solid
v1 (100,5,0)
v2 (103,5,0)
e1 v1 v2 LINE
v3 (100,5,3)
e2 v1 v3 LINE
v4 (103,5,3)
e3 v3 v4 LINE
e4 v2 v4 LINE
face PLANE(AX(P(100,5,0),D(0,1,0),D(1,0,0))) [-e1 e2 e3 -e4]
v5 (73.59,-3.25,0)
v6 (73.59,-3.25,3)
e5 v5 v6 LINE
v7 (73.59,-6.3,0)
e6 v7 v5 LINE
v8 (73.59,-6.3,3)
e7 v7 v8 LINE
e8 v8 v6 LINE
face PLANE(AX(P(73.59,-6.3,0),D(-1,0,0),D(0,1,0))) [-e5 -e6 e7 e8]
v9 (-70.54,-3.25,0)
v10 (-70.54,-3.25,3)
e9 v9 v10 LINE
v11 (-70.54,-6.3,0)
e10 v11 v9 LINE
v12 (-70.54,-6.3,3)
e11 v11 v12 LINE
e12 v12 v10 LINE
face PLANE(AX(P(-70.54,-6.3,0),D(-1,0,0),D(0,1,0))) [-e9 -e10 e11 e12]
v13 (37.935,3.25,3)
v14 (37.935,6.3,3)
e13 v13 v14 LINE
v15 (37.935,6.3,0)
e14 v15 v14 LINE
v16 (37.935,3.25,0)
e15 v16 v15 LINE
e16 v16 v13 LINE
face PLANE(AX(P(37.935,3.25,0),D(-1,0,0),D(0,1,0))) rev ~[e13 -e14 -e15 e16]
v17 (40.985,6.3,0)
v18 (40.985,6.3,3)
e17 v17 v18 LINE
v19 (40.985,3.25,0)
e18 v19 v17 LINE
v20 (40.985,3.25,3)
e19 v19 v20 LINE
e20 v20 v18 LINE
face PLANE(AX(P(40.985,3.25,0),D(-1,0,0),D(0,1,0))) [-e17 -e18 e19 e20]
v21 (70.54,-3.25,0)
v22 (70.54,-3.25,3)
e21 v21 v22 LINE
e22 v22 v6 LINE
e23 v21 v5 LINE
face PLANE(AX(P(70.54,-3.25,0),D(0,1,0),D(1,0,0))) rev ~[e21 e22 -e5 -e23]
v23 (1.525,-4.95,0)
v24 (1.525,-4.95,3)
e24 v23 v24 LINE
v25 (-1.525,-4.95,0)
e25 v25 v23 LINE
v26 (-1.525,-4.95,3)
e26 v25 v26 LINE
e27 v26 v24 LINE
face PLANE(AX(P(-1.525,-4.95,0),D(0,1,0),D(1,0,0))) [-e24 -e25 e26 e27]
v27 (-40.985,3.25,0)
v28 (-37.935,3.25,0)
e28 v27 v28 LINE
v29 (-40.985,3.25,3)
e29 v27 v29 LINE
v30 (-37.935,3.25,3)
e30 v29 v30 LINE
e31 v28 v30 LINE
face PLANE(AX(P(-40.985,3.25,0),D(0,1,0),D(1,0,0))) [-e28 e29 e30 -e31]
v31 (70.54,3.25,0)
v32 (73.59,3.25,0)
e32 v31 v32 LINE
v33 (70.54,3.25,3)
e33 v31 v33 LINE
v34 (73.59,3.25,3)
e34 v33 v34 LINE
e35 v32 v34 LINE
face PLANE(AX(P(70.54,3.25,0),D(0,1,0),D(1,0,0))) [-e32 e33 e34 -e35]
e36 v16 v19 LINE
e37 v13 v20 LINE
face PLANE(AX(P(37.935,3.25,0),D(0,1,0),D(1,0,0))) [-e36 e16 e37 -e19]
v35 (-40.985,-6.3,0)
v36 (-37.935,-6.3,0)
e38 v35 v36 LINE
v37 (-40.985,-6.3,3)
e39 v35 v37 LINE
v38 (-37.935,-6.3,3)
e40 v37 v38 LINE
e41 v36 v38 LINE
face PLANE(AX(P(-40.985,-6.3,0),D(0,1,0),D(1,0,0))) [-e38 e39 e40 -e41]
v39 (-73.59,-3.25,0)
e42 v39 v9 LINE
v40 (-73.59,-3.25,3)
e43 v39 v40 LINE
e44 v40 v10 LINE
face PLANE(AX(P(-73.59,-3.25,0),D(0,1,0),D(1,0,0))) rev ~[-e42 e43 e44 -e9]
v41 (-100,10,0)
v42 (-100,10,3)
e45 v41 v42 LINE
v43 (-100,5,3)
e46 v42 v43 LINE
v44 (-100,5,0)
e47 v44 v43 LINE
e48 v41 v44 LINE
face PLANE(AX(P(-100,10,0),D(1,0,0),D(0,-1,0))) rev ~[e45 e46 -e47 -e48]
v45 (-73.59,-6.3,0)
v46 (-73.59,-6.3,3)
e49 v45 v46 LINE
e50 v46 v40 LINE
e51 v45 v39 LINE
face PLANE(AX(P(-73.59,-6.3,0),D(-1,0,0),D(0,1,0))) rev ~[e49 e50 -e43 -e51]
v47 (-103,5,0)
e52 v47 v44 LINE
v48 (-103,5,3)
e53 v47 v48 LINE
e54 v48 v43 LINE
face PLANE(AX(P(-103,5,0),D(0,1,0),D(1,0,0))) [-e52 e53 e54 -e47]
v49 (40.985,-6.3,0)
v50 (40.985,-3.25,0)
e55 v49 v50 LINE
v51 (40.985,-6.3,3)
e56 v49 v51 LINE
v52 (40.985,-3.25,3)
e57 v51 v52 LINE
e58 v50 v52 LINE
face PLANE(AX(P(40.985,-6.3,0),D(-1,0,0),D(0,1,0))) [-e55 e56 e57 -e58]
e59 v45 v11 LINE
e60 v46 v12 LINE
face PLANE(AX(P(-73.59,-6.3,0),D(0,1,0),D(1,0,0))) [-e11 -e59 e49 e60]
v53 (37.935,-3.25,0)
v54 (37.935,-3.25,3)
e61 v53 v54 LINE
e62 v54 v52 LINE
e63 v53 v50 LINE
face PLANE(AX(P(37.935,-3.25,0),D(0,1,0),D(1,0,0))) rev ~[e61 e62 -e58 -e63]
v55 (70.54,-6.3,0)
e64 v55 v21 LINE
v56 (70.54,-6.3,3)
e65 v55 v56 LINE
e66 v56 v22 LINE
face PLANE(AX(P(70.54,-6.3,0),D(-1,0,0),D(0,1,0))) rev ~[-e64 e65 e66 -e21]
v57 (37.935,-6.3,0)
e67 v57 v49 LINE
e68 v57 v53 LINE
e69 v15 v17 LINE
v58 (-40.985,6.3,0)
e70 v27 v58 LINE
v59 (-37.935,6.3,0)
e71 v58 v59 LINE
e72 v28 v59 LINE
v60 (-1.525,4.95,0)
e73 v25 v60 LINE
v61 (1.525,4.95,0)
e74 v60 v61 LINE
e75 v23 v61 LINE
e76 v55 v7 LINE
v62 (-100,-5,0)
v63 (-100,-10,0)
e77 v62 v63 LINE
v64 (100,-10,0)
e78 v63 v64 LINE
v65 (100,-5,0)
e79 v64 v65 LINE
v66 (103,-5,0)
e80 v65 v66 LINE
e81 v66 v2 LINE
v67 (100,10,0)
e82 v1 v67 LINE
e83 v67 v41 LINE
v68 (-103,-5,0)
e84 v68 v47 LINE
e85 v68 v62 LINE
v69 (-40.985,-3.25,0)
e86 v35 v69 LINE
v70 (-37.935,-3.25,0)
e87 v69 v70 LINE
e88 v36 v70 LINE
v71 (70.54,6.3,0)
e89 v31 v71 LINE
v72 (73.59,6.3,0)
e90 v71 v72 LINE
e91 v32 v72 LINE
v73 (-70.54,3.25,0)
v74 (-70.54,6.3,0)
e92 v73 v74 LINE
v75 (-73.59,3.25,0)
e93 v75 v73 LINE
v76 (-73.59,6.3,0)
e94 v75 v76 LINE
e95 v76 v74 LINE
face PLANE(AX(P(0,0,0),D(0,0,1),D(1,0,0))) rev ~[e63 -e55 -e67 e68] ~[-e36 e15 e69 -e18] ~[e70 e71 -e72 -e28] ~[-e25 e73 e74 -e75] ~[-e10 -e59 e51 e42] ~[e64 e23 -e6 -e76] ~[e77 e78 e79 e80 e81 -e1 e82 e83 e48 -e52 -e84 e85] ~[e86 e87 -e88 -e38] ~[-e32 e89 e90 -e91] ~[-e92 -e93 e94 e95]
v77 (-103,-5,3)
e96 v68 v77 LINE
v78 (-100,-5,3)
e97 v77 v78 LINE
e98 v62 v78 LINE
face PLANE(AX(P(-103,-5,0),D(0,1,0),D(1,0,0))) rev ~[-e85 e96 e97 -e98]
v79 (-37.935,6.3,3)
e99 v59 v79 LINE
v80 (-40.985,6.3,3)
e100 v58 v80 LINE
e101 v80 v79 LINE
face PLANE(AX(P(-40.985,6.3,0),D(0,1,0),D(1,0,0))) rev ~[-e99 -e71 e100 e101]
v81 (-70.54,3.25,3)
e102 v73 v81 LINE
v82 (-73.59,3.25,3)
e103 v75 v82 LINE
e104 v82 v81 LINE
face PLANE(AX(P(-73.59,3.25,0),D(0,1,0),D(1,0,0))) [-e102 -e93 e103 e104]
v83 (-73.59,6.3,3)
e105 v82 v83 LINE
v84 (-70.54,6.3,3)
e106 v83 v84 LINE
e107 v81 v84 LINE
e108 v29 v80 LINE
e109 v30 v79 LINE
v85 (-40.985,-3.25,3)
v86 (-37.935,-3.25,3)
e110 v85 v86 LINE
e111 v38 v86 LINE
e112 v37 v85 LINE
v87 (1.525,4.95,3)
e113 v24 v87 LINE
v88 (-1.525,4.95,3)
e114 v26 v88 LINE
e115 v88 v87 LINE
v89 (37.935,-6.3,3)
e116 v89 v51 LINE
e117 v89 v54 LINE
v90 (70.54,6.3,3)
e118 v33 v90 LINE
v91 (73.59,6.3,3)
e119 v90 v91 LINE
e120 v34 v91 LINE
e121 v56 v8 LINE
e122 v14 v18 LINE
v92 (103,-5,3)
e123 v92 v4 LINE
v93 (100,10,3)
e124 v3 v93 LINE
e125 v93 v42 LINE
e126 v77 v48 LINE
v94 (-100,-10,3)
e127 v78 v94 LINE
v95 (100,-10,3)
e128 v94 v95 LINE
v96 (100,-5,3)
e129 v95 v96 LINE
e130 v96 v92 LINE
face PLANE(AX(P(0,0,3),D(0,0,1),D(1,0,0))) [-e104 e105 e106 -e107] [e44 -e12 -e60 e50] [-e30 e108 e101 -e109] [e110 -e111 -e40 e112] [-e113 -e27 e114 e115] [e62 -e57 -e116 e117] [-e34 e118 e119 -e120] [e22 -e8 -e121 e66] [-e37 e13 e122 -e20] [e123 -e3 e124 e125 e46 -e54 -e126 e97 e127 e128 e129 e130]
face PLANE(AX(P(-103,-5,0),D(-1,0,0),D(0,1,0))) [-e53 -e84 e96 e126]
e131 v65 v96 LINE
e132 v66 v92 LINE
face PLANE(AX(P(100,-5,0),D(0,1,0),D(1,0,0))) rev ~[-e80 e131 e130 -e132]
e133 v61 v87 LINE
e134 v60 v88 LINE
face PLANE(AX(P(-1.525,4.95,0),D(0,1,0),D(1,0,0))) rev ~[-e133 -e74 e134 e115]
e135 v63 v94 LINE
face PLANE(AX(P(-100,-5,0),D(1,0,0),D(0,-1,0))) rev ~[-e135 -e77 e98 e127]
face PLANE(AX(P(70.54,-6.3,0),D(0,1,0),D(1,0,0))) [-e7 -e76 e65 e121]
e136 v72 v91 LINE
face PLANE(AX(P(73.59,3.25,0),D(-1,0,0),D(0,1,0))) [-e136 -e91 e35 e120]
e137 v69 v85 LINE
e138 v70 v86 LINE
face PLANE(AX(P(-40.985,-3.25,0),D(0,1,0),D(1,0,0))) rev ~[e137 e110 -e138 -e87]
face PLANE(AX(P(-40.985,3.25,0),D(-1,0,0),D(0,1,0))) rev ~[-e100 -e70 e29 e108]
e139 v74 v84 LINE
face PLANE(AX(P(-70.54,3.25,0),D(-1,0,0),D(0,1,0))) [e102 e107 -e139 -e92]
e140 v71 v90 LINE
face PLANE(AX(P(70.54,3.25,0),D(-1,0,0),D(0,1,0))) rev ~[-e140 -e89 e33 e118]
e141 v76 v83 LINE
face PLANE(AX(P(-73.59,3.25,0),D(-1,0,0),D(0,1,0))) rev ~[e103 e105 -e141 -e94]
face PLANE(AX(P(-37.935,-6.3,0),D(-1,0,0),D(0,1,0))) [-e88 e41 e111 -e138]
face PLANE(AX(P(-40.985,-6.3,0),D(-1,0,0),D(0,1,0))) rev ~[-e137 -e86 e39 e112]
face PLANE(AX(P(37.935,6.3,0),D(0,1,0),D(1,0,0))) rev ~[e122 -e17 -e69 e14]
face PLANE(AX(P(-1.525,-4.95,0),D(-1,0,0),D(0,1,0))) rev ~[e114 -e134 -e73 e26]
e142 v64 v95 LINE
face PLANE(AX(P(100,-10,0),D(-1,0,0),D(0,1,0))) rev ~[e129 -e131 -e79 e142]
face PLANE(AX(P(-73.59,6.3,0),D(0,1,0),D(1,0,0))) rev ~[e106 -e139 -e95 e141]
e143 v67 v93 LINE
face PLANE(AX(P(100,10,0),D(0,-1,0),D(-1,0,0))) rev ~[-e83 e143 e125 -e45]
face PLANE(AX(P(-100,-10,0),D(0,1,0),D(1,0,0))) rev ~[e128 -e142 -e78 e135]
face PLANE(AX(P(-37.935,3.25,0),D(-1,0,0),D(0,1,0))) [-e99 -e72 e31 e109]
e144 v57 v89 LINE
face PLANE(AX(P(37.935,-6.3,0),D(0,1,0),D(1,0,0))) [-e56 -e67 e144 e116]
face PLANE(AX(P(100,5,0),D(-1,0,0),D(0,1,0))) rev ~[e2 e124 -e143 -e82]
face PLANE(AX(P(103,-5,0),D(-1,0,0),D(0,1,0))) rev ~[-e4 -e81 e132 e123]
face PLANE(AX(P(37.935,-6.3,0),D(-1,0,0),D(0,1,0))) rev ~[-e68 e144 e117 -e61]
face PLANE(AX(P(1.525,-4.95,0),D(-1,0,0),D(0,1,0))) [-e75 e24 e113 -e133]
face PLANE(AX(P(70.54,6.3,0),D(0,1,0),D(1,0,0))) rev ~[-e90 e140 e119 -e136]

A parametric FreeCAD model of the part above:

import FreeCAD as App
import Part
import Sketcher
from FreeCAD import Vector

doc = App.newDocument("Part")
params = doc.addObject("Spreadsheet::Sheet", "Params")
for row, (alias, value) in enumerate([
    ("sketch1_width", "200 mm"),
    ("sketch1_width2", "3 mm"),
    ("sketch1_height", "5 mm"),
    ("sketch1_height2", "10 mm"),
    ("sketch1_height3", "9.9 mm"),
    ("pad1_length", "3 mm"),
], start=1):
    params.set(f"A{row}", alias)
    params.set(f"B{row}", "=" + value)
    params.setAlias(f"B{row}", alias)

body = doc.addObject("PartDesign::Body", "Body")

# Sketch on XY plane
sketch1 = body.newObject("Sketcher::SketchObject", "Sketch")
sketch1.AttachmentSupport = (doc.getObject("XY_Plane"), [""])
sketch1.MapMode = "FlatFace"
sketch1.addGeometry(Part.LineSegment(Vector(-100, -10, 0), Vector(100, -10, 0)), False)
sketch1.addGeometry(Part.LineSegment(Vector(100, -10, 0), Vector(100, -5, 0)), False)
sketch1.addGeometry(Part.LineSegment(Vector(100, -5, 0), Vector(103, -5, 0)), False)
sketch1.addGeometry(Part.LineSegment(Vector(103, -5, 0), Vector(103, 5, 0)), False)
sketch1.addGeometry(Part.LineSegment(Vector(103, 5, 0), Vector(100, 5, 0)), False)
sketch1.addGeometry(Part.LineSegment(Vector(100, 5, 0), Vector(100, 10, 0)), False)
sketch1.addGeometry(Part.LineSegment(Vector(100, 10, 0), Vector(-100, 10, 0)), False)
sketch1.addGeometry(Part.LineSegment(Vector(-100, 10, 0), Vector(-100, 5, 0)), False)
sketch1.addGeometry(Part.LineSegment(Vector(-100, 5, 0), Vector(-103, 5, 0)), False)
sketch1.addGeometry(Part.LineSegment(Vector(-103, 5, 0), Vector(-103, -5, 0)), False)
sketch1.addGeometry(Part.LineSegment(Vector(-103, -5, 0), Vector(-100, -5, 0)), False)
sketch1.addGeometry(Part.LineSegment(Vector(-100, -5, 0), Vector(-100, -10, 0)), False)
sketch1.addGeometry(Part.LineSegment(Vector(-70.54, -6.3, 0), Vector(-73.59, -6.3, 0)), False)
sketch1.addGeometry(Part.LineSegment(Vector(-73.59, -6.3, 0), Vector(-73.59, -3.25, 0)), False)
sketch1.addGeometry(Part.LineSegment(Vector(-73.59, -3.25, 0), Vector(-70.54, -3.25, 0)), False)
sketch1.addGeometry(Part.LineSegment(Vector(-70.54, -3.25, 0), Vector(-70.54, -6.3, 0)), False)
sketch1.addGeometry(Part.LineSegment(Vector(-37.935, -6.3, 0), Vector(-40.985, -6.3, 0)), False)
sketch1.addGeometry(Part.LineSegment(Vector(-40.985, -6.3, 0), Vector(-40.985, -3.25, 0)), False)
sketch1.addGeometry(Part.LineSegment(Vector(-40.985, -3.25, 0), Vector(-37.935, -3.25, 0)), False)
sketch1.addGeometry(Part.LineSegment(Vector(-37.935, -3.25, 0), Vector(-37.935, -6.3, 0)), False)
sketch1.addGeometry(Part.LineSegment(Vector(40.985, -6.3, 0), Vector(37.935, -6.3, 0)), False)
sketch1.addGeometry(Part.LineSegment(Vector(37.935, -6.3, 0), Vector(37.935, -3.25, 0)), False)
sketch1.addGeometry(Part.LineSegment(Vector(37.935, -3.25, 0), Vector(40.985, -3.25, 0)), False)
sketch1.addGeometry(Part.LineSegment(Vector(40.985, -3.25, 0), Vector(40.985, -6.3, 0)), False)
sketch1.addGeometry(Part.LineSegment(Vector(73.59, -6.3, 0), Vector(70.54, -6.3, 0)), False)
sketch1.addGeometry(Part.LineSegment(Vector(70.54, -6.3, 0), Vector(70.54, -3.25, 0)), False)
sketch1.addGeometry(Part.LineSegment(Vector(70.54, -3.25, 0), Vector(73.59, -3.25, 0)), False)
sketch1.addGeometry(Part.LineSegment(Vector(73.59, -3.25, 0), Vector(73.59, -6.3, 0)), False)
sketch1.addGeometry(Part.LineSegment(Vector(-70.54, 3.25, 0), Vector(-73.59, 3.25, 0)), False)
sketch1.addGeometry(Part.LineSegment(Vector(-73.59, 3.25, 0), Vector(-73.59, 6.3, 0)), False)
sketch1.addGeometry(Part.LineSegment(Vector(-73.59, 6.3, 0), Vector(-70.54, 6.3, 0)), False)
sketch1.addGeometry(Part.LineSegment(Vector(-70.54, 6.3, 0), Vector(-70.54, 3.25, 0)), False)
sketch1.addGeometry(Part.LineSegment(Vector(-37.935, 3.25, 0), Vector(-40.985, 3.25, 0)), False)
sketch1.addGeometry(Part.LineSegment(Vector(-40.985, 3.25, 0), Vector(-40.985, 6.3, 0)), False)
sketch1.addGeometry(Part.LineSegment(Vector(-40.985, 6.3, 0), Vector(-37.935, 6.3, 0)), False)
sketch1.addGeometry(Part.LineSegment(Vector(-37.935, 6.3, 0), Vector(-37.935, 3.25, 0)), False)
sketch1.addGeometry(Part.LineSegment(Vector(1.525, -4.95, 0), Vector(-1.525, -4.95, 0)), False)
sketch1.addGeometry(Part.LineSegment(Vector(-1.525, -4.95, 0), Vector(-1.525, 4.95, 0)), False)
sketch1.addGeometry(Part.LineSegment(Vector(-1.525, 4.95, 0), Vector(1.525, 4.95, 0)), False)
sketch1.addGeometry(Part.LineSegment(Vector(1.525, 4.95, 0), Vector(1.525, -4.95, 0)), False)
sketch1.addGeometry(Part.LineSegment(Vector(40.985, 3.25, 0), Vector(37.935, 3.25, 0)), False)
sketch1.addGeometry(Part.LineSegment(Vector(37.935, 3.25, 0), Vector(37.935, 6.3, 0)), False)
sketch1.addGeometry(Part.LineSegment(Vector(37.935, 6.3, 0), Vector(40.985, 6.3, 0)), False)
sketch1.addGeometry(Part.LineSegment(Vector(40.985, 6.3, 0), Vector(40.985, 3.25, 0)), False)
sketch1.addGeometry(Part.LineSegment(Vector(73.59, 3.25, 0), Vector(70.54, 3.25, 0)), False)
sketch1.addGeometry(Part.LineSegment(Vector(70.54, 3.25, 0), Vector(70.54, 6.3, 0)), False)
sketch1.addGeometry(Part.LineSegment(Vector(70.54, 6.3, 0), Vector(73.59, 6.3, 0)), False)
sketch1.addGeometry(Part.LineSegment(Vector(73.59, 6.3, 0), Vector(73.59, 3.25, 0)), False)
sketch1.addConstraint(Sketcher.Constraint("Coincident", 0, 2, 1, 1))
sketch1.addConstraint(Sketcher.Constraint("Coincident", 1, 2, 2, 1))
sketch1.addConstraint(Sketcher.Constraint("Coincident", 2, 2, 3, 1))
sketch1.addConstraint(Sketcher.Constraint("Coincident", 3, 2, 4, 1))
sketch1.addConstraint(Sketcher.Constraint("Coincident", 4, 2, 5, 1))
sketch1.addConstraint(Sketcher.Constraint("Coincident", 5, 2, 6, 1))
sketch1.addConstraint(Sketcher.Constraint("Coincident", 6, 2, 7, 1))
sketch1.addConstraint(Sketcher.Constraint("Coincident", 7, 2, 8, 1))
sketch1.addConstraint(Sketcher.Constraint("Coincident", 8, 2, 9, 1))
sketch1.addConstraint(Sketcher.Constraint("Coincident", 9, 2, 10, 1))
sketch1.addConstraint(Sketcher.Constraint("Coincident", 10, 2, 11, 1))
sketch1.addConstraint(Sketcher.Constraint("Coincident", 11, 2, 0, 1))
sketch1.addConstraint(Sketcher.Constraint("Coincident", 12, 2, 13, 1))
sketch1.addConstraint(Sketcher.Constraint("Coincident", 13, 2, 14, 1))
sketch1.addConstraint(Sketcher.Constraint("Coincident", 14, 2, 15, 1))
sketch1.addConstraint(Sketcher.Constraint("Coincident", 15, 2, 12, 1))
sketch1.addConstraint(Sketcher.Constraint("Coincident", 16, 2, 17, 1))
sketch1.addConstraint(Sketcher.Constraint("Coincident", 17, 2, 18, 1))
sketch1.addConstraint(Sketcher.Constraint("Coincident", 18, 2, 19, 1))
sketch1.addConstraint(Sketcher.Constraint("Coincident", 19, 2, 16, 1))
sketch1.addConstraint(Sketcher.Constraint("Coincident", 20, 2, 21, 1))
sketch1.addConstraint(Sketcher.Constraint("Coincident", 21, 2, 22, 1))
sketch1.addConstraint(Sketcher.Constraint("Coincident", 22, 2, 23, 1))
sketch1.addConstraint(Sketcher.Constraint("Coincident", 23, 2, 20, 1))
sketch1.addConstraint(Sketcher.Constraint("Coincident", 24, 2, 25, 1))
sketch1.addConstraint(Sketcher.Constraint("Coincident", 25, 2, 26, 1))
sketch1.addConstraint(Sketcher.Constraint("Coincident", 26, 2, 27, 1))
sketch1.addConstraint(Sketcher.Constraint("Coincident", 27, 2, 24, 1))
sketch1.addConstraint(Sketcher.Constraint("Coincident", 28, 2, 29, 1))
sketch1.addConstraint(Sketcher.Constraint("Coincident", 29, 2, 30, 1))
sketch1.addConstraint(Sketcher.Constraint("Coincident", 30, 2, 31, 1))
sketch1.addConstraint(Sketcher.Constraint("Coincident", 31, 2, 28, 1))
sketch1.addConstraint(Sketcher.Constraint("Coincident", 32, 2, 33, 1))
sketch1.addConstraint(Sketcher.Constraint("Coincident", 33, 2, 34, 1))
sketch1.addConstraint(Sketcher.Constraint("Coincident", 34, 2, 35, 1))
sketch1.addConstraint(Sketcher.Constraint("Coincident", 35, 2, 32, 1))
sketch1.addConstraint(Sketcher.Constraint("Coincident", 36, 2, 37, 1))
sketch1.addConstraint(Sketcher.Constraint("Coincident", 37, 2, 38, 1))
sketch1.addConstraint(Sketcher.Constraint("Coincident", 38, 2, 39, 1))
sketch1.addConstraint(Sketcher.Constraint("Coincident", 39, 2, 36, 1))
sketch1.addConstraint(Sketcher.Constraint("Coincident", 40, 2, 41, 1))
sketch1.addConstraint(Sketcher.Constraint("Coincident", 41, 2, 42, 1))
sketch1.addConstraint(Sketcher.Constraint("Coincident", 42, 2, 43, 1))
sketch1.addConstraint(Sketcher.Constraint("Coincident", 43, 2, 40, 1))
sketch1.addConstraint(Sketcher.Constraint("Coincident", 44, 2, 45, 1))
sketch1.addConstraint(Sketcher.Constraint("Coincident", 45, 2, 46, 1))
sketch1.addConstraint(Sketcher.Constraint("Coincident", 46, 2, 47, 1))
sketch1.addConstraint(Sketcher.Constraint("Coincident", 47, 2, 44, 1))
sketch1.addConstraint(Sketcher.Constraint("Horizontal", 0))
sketch1.addConstraint(Sketcher.Constraint("Vertical", 1))
sketch1.addConstraint(Sketcher.Constraint("Horizontal", 2))
sketch1.addConstraint(Sketcher.Constraint("Vertical", 3))
sketch1.addConstraint(Sketcher.Constraint("Horizontal", 4))
sketch1.addConstraint(Sketcher.Constraint("Vertical", 5))
sketch1.addConstraint(Sketcher.Constraint("Horizontal", 6))
sketch1.addConstraint(Sketcher.Constraint("Vertical", 7))
sketch1.addConstraint(Sketcher.Constraint("Horizontal", 8))
sketch1.addConstraint(Sketcher.Constraint("Vertical", 9))
sketch1.addConstraint(Sketcher.Constraint("Horizontal", 10))
sketch1.addConstraint(Sketcher.Constraint("Vertical", 11))
sketch1.addConstraint(Sketcher.Constraint("Horizontal", 12))
sketch1.addConstraint(Sketcher.Constraint("Vertical", 13))
sketch1.addConstraint(Sketcher.Constraint("Horizontal", 14))
sketch1.addConstraint(Sketcher.Constraint("Vertical", 15))
sketch1.addConstraint(Sketcher.Constraint("Horizontal", 16))
sketch1.addConstraint(Sketcher.Constraint("Vertical", 17))
sketch1.addConstraint(Sketcher.Constraint("Horizontal", 18))
sketch1.addConstraint(Sketcher.Constraint("Vertical", 19))
sketch1.addConstraint(Sketcher.Constraint("Horizontal", 20))
sketch1.addConstraint(Sketcher.Constraint("Vertical", 21))
sketch1.addConstraint(Sketcher.Constraint("Horizontal", 22))
sketch1.addConstraint(Sketcher.Constraint("Vertical", 23))
sketch1.addConstraint(Sketcher.Constraint("Horizontal", 24))
sketch1.addConstraint(Sketcher.Constraint("Vertical", 25))
sketch1.addConstraint(Sketcher.Constraint("Horizontal", 26))
sketch1.addConstraint(Sketcher.Constraint("Vertical", 27))
sketch1.addConstraint(Sketcher.Constraint("Horizontal", 28))
sketch1.addConstraint(Sketcher.Constraint("Vertical", 29))
sketch1.addConstraint(Sketcher.Constraint("Horizontal", 30))
sketch1.addConstraint(Sketcher.Constraint("Vertical", 31))
sketch1.addConstraint(Sketcher.Constraint("Horizontal", 32))
sketch1.addConstraint(Sketcher.Constraint("Vertical", 33))
sketch1.addConstraint(Sketcher.Constraint("Horizontal", 34))
sketch1.addConstraint(Sketcher.Constraint("Vertical", 35))
sketch1.addConstraint(Sketcher.Constraint("Horizontal", 36))
sketch1.addConstraint(Sketcher.Constraint("Vertical", 37))
sketch1.addConstraint(Sketcher.Constraint("Horizontal", 38))
sketch1.addConstraint(Sketcher.Constraint("Vertical", 39))
sketch1.addConstraint(Sketcher.Constraint("Horizontal", 40))
sketch1.addConstraint(Sketcher.Constraint("Vertical", 41))
sketch1.addConstraint(Sketcher.Constraint("Horizontal", 42))
sketch1.addConstraint(Sketcher.Constraint("Vertical", 43))
sketch1.addConstraint(Sketcher.Constraint("Horizontal", 44))
sketch1.addConstraint(Sketcher.Constraint("Vertical", 45))
sketch1.addConstraint(Sketcher.Constraint("Horizontal", 46))
sketch1.addConstraint(Sketcher.Constraint("Vertical", 47))
sketch1.addConstraint(Sketcher.Constraint("Symmetric", 0, 2, 6, 2, -1, 1))
sketch1.addConstraint(Sketcher.Constraint("Symmetric", 2, 2, 8, 2, -1, 1))
sketch1.addConstraint(Sketcher.Constraint("Symmetric", 4, 2, 10, 2, -1, 1))
sketch1.addConstraint(Sketcher.Constraint("Symmetric", 26, 2, 28, 2, -1, 1))
sketch1.addConstraint(Sketcher.Constraint("Symmetric", 24, 2, 30, 2, -1, 1))
sketch1.addConstraint(Sketcher.Constraint("Symmetric", 22, 2, 32, 2, -1, 1))
sketch1.addConstraint(Sketcher.Constraint("Symmetric", 20, 2, 34, 2, -1, 1))
sketch1.addConstraint(Sketcher.Constraint("Symmetric", 36, 2, 38, 2, -1, 1))
sketch1.addConstraint(Sketcher.Constraint("Symmetric", 18, 2, 40, 2, -1, 1))
sketch1.addConstraint(Sketcher.Constraint("Symmetric", 16, 2, 42, 2, -1, 1))
sketch1.addConstraint(Sketcher.Constraint("Symmetric", 14, 2, 44, 2, -1, 1))
sketch1.addConstraint(Sketcher.Constraint("Symmetric", 12, 2, 46, 2, -1, 1))
sketch1.addConstraint(Sketcher.Constraint("Symmetric", 4, 2, 7, 2, -2))
sketch1.addConstraint(Sketcher.Constraint("Symmetric", 19, 2, 20, 2, -2))
sketch1.addConstraint(Sketcher.Constraint("Symmetric", 17, 2, 22, 2, -2))
sketch1.addConstraint(Sketcher.Constraint("Symmetric", 15, 2, 24, 2, -2))
sketch1.addConstraint(Sketcher.Constraint("Symmetric", 13, 2, 26, 2, -2))
sketch1.addConstraint(Sketcher.Constraint("Horizontal", 15, 2, 16, 2))
sketch1.addConstraint(Sketcher.Constraint("Horizontal", 14, 2, 17, 2))
sketch1.addConstraint(Sketcher.Constraint("Equal", 14, 16))
sketch1.addConstraint(Sketcher.Constraint("Equal", 34, 36))
sketch1.addConstraint(Sketcher.Constraint("Equal", 46, 13))
sketch1.addConstraint(Sketcher.Constraint("DistanceX", 0, 1, 0, 2, 200.0))
sketch1.addConstraint(Sketcher.Constraint("DistanceX", 2, 1, 2, 2, 3.0))
sketch1.addConstraint(Sketcher.Constraint("DistanceY", 1, 1, 1, 2, 5.0))
sketch1.addConstraint(Sketcher.Constraint("DistanceY", 3, 1, 3, 2, 10.0))
sketch1.addConstraint(Sketcher.Constraint("DistanceY", 37, 1, 37, 2, 9.9))
sketch1.addConstraint(Sketcher.Constraint("DistanceX", 12, 2, 12, 1, 3.05))
sketch1.addConstraint(Sketcher.Constraint("DistanceY", 12, 2, -1, 1, 6.3))
sketch1.addConstraint(Sketcher.Constraint("DistanceX", 12, 2, -1, 1, 73.59))
sketch1.addConstraint(Sketcher.Constraint("DistanceX", 19, 2, 36, 2, 36.41))
sketch1.setExpression("Constraints[118]", "Params.sketch1_width")
sketch1.setExpression("Constraints[119]", "Params.sketch1_width2")
sketch1.setExpression("Constraints[120]", "Params.sketch1_height")
sketch1.setExpression("Constraints[121]", "Params.sketch1_height2")
sketch1.setExpression("Constraints[122]", "Params.sketch1_height3")
pad1 = body.newObject("PartDesign::Pad", "Pad")
pad1.Profile = sketch1
pad1.setExpression("Length", "Params.pad1_length")

doc.recompute()
